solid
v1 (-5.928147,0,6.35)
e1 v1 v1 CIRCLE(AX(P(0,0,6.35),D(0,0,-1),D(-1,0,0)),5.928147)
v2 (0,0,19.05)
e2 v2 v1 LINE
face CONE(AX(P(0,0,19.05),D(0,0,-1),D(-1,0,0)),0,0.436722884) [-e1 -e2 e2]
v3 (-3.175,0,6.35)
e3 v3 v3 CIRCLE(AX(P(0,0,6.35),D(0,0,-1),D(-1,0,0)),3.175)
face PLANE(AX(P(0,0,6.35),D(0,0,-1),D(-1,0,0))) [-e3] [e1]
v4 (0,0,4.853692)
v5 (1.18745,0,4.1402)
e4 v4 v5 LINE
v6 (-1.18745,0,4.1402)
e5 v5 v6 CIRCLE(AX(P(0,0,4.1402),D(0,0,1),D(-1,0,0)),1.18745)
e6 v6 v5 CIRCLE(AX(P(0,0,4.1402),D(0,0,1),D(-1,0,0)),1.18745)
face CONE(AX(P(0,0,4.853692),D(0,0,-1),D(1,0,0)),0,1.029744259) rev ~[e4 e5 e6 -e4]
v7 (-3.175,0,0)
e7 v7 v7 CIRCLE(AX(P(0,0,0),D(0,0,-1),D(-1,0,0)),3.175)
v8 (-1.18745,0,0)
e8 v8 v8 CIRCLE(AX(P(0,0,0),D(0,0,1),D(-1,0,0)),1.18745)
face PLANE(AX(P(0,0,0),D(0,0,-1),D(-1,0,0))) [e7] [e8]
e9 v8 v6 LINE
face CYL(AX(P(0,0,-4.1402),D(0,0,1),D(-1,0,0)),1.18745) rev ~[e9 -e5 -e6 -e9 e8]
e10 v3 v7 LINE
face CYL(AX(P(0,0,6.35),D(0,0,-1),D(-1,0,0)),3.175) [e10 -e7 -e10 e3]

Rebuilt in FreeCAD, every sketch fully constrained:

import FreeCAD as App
import Part
import Sketcher
Q = App.Units.Quantity

doc = App.newDocument("Part")
body = doc.addObject("PartDesign::Body", "Body")

sketch1 = body.newObject("Sketcher::SketchObject", "Sketch")
sketch1.AttachmentSupport = (doc.getObject("XZ_Plane"), [""])
sketch1.MapMode = "FlatFace"
sketch1.addGeometry(Part.LineSegment(App.Vector(-3.2, 0, 0), App.Vector(0, 0, 0)), False)
sketch1.addGeometry(Part.LineSegment(App.Vector(0, 0, 0), App.Vector(0, 19.1, 0)), False)
sketch1.addGeometry(Part.LineSegment(App.Vector(0, 19.1, 0), App.Vector(-5.9, 6.3, 0)), False)
sketch1.addGeometry(Part.LineSegment(App.Vector(-5.9, 6.3, 0), App.Vector(-3.2, 6.3, 0)), False)
sketch1.addGeometry(Part.LineSegment(App.Vector(-3.2, 6.3, 0), App.Vector(-3.2, 0, 0)), False)
sketch1.addConstraint(Sketcher.Constraint("Coincident", 0, 2, 1, 1))
sketch1.addConstraint(Sketcher.Constraint("Coincident", 1, 2, 2, 1))
sketch1.addConstraint(Sketcher.Constraint("Coincident", 2, 2, 3, 1))
sketch1.addConstraint(Sketcher.Constraint("Coincident", 3, 2, 4, 1))
sketch1.addConstraint(Sketcher.Constraint("Coincident", 4, 2, 0, 1))
sketch1.addConstraint(Sketcher.Constraint("Horizontal", 0))
sketch1.addConstraint(Sketcher.Constraint("Vertical", 1))
sketch1.addConstraint(Sketcher.Constraint("Horizontal", 3))
sketch1.addConstraint(Sketcher.Constraint("Vertical", 4))
sketch1.addConstraint(Sketcher.Constraint("Coincident", 0, 2, -1, 1))
sketch1.addConstraint(Sketcher.Constraint("DistanceY", 1, 1, 1, 2, Q("0.75 in")))
sketch1.addConstraint(Sketcher.Constraint("DistanceY", 4, 2, 4, 1, Q("0.25 in")))
sketch1.addConstraint(Sketcher.Constraint("DistanceX", 0, 1, 0, 2, Q("0.125 in")))
sketch1.addConstraint(Sketcher.Constraint("DistanceX", 3, 1, 3, 2, 2.753147))
revolution = body.newObject("PartDesign::Revolution", "Revolution")
revolution.Profile = sketch1
revolution.ReferenceAxis = (sketch1, ["V_Axis"])
revolution.Angle = 360

sketch2 = body.newObject("Sketcher::SketchObject", "Sketch001")
sketch2.AttachmentSupport = (doc.getObject("XY_Plane"), [""])
sketch2.MapMode = "FlatFace"
sketch2.addGeometry(Part.Circle(App.Vector(0, 0, 0), App.Vector(0, 0, 1), 1.2), False)
sketch2.addConstraint(Sketcher.Constraint("Coincident", 0, 3, -1, 1))
sketch2.addConstraint(Sketcher.Constraint("Diameter", 0, Q("0.0935 in")))
doc.recompute()
hole = body.newObject("PartDesign::Hole", "Hole")
hole.Profile = sketch2
hole.ThreadType = "None"
hole.Diameter = Q("0.0935 in")
hole.DepthType = "Dimension"
hole.Depth = Q("0.163 in")
hole.DrillPoint = "Angled"
hole.DrillPointAngle = 118
hole.Reversed = True

doc.recompute()
